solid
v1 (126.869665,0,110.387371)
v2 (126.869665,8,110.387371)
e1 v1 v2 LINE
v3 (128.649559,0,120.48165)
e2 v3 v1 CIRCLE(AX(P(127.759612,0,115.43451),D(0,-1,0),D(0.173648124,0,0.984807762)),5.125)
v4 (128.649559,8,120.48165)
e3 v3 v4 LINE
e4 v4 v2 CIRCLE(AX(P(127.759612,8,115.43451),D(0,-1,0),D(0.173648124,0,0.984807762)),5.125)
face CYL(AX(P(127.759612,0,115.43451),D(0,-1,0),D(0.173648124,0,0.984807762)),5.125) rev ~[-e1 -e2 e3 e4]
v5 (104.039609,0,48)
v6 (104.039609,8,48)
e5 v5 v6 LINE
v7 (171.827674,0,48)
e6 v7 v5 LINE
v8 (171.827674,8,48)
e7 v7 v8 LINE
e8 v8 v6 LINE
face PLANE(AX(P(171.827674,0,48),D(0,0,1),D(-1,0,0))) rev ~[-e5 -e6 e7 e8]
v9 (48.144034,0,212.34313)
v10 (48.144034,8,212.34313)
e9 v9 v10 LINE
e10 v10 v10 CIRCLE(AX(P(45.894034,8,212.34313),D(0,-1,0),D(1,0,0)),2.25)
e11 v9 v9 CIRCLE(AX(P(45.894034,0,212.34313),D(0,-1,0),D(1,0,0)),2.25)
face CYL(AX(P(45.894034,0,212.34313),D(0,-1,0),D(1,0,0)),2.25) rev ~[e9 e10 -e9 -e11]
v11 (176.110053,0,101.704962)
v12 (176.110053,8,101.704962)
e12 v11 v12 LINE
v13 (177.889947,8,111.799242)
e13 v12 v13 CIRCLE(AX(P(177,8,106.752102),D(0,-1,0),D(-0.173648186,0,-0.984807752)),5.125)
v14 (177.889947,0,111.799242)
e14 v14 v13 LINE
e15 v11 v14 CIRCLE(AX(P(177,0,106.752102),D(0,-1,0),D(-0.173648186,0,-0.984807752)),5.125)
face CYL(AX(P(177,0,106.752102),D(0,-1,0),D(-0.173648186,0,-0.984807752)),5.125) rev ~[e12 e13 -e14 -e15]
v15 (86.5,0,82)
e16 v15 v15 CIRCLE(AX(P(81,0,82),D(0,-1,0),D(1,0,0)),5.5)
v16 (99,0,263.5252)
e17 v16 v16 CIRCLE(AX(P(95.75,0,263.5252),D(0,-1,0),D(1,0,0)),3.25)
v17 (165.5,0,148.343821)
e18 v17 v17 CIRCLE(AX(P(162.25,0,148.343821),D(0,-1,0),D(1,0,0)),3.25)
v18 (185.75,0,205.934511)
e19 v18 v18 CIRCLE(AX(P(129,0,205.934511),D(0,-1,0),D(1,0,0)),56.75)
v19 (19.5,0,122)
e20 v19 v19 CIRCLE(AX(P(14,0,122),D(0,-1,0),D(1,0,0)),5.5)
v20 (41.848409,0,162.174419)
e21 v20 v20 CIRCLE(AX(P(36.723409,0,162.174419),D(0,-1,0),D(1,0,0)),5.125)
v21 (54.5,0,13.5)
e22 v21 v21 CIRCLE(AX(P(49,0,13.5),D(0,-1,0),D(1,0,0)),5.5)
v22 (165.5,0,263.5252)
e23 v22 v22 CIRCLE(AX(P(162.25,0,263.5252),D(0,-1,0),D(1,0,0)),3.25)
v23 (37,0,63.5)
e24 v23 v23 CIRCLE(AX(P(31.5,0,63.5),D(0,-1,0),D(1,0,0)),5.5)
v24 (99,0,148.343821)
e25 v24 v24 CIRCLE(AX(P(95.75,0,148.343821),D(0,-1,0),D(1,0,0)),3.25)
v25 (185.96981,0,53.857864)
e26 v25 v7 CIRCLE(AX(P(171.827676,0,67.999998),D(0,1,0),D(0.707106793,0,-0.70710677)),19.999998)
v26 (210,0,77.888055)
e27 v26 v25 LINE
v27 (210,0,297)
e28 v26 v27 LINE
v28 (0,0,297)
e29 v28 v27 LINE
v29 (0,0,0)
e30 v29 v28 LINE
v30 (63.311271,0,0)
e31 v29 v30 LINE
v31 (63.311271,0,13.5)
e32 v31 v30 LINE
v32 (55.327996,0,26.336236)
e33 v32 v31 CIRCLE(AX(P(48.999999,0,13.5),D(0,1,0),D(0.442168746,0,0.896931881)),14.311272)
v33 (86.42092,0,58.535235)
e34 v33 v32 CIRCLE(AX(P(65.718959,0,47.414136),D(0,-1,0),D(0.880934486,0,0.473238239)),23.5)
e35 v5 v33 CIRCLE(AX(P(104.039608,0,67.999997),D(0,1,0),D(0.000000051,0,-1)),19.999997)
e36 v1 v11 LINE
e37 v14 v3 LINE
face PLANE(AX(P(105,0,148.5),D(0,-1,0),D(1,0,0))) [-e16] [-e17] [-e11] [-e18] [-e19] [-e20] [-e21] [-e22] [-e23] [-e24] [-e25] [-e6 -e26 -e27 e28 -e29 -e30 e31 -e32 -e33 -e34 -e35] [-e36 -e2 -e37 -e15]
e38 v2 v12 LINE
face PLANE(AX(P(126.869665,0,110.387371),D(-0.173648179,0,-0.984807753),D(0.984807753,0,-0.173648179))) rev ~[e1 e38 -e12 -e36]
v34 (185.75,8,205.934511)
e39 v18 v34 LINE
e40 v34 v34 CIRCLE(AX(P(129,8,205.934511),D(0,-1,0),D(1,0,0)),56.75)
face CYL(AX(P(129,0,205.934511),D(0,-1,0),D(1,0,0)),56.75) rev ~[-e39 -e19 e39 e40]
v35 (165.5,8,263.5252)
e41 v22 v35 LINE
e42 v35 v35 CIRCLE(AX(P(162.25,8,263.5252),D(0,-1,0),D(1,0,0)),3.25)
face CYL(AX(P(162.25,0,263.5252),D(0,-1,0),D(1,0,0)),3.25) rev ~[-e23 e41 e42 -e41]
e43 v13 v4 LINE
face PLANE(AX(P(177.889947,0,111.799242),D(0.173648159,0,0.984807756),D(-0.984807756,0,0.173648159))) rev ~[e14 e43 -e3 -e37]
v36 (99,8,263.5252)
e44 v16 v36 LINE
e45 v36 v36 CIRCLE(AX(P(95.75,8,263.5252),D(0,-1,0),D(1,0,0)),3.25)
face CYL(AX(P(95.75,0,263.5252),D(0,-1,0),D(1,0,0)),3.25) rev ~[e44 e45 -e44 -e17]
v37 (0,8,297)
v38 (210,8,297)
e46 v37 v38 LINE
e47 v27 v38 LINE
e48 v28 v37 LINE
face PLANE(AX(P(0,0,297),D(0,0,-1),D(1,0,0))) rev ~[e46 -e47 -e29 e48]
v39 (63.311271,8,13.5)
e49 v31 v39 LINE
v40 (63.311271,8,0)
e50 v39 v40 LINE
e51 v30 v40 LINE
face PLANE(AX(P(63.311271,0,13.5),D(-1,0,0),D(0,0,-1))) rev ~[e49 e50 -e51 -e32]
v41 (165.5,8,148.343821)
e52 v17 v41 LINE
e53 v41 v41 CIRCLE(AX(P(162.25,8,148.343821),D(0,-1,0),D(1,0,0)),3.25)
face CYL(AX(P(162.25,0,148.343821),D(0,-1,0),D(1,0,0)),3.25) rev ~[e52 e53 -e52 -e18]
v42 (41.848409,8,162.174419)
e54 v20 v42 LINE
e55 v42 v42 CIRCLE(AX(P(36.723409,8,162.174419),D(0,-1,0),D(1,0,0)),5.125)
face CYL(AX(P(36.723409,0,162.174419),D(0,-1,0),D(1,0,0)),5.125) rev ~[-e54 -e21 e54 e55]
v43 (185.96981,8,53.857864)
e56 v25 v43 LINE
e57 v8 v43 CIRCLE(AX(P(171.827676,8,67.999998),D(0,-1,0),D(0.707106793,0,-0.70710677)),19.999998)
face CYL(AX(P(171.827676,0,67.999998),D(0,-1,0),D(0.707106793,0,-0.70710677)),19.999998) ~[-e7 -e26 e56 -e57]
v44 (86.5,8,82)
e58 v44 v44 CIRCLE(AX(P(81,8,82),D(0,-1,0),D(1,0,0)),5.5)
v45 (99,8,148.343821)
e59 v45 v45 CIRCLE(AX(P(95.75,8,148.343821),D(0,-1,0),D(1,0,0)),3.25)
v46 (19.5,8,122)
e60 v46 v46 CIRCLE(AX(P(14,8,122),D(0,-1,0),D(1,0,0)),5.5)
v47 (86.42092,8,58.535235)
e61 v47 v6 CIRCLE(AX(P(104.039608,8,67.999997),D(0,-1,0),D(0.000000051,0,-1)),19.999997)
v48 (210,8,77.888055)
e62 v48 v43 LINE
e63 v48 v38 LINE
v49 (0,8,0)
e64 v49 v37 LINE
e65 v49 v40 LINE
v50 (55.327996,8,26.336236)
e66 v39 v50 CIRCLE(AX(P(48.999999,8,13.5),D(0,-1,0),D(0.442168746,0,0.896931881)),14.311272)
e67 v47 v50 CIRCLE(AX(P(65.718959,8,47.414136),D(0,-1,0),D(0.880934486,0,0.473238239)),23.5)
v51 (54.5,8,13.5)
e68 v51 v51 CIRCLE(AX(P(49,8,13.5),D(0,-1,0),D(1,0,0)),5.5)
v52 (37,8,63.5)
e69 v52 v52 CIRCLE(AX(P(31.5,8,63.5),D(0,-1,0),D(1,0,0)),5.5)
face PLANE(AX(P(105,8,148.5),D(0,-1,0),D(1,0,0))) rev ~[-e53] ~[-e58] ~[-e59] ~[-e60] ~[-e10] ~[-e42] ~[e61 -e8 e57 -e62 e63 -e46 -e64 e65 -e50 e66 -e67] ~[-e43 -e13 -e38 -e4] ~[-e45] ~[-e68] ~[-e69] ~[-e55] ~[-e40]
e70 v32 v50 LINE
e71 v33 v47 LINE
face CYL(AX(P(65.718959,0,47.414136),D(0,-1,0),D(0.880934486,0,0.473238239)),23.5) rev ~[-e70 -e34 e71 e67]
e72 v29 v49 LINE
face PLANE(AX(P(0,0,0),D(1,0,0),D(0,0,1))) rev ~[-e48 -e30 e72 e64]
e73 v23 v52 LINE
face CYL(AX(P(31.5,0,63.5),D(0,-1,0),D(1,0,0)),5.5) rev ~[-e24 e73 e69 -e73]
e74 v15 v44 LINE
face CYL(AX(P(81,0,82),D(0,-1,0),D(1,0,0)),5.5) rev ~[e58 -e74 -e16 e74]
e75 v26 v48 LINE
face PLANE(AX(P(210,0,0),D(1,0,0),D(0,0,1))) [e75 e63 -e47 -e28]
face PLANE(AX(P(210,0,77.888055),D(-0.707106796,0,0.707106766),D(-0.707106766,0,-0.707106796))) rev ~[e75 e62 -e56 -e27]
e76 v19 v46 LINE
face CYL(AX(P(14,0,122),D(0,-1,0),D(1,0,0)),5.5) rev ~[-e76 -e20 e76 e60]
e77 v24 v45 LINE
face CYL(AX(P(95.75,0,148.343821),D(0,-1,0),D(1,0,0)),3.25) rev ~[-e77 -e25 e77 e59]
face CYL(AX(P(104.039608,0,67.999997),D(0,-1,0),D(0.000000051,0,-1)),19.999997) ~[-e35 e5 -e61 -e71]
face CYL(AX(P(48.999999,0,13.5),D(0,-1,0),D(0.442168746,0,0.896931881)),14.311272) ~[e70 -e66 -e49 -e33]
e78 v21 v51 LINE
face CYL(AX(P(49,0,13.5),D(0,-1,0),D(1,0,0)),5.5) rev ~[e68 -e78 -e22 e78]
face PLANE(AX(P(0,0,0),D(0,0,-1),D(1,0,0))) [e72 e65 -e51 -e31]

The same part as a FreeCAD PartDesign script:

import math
import FreeCAD as App
import Part
import Sketcher
Q = App.Units.Quantity

doc = App.newDocument("Part")
body = doc.addObject("PartDesign::Body", "Body")

# Sketch on XZ plane
sketch1 = doc.addObject("Sketcher::SketchObject", "Sketch")
body.addObject(sketch1)
sketch1.AttachmentSupport = (doc.XZ_Plane, [""])
sketch1.MapMode = "FlatFace"
sketch1.addGeometry([
    Part.LineSegment(App.Vector(0, 297, 0), App.Vector(0, 0, 0)),
    Part.LineSegment(App.Vector(0, 0, 0), App.Vector(210, 0, 0)),
    Part.LineSegment(App.Vector(210, 0, 0), App.Vector(210, 297, 0)),
    Part.LineSegment(App.Vector(210, 297, 0), App.Vector(0, 297, 0)),
], False)
sketch1.addConstraint([
    Sketcher.Constraint("Coincident", 0, 2, 1, 1),
    Sketcher.Constraint("Coincident", 1, 2, 2, 1),
    Sketcher.Constraint("Coincident", 2, 2, 3, 1),
    Sketcher.Constraint("Coincident", 3, 2, 0, 1),
    Sketcher.Constraint("Vertical", 0),
    Sketcher.Constraint("Horizontal", 1),
    Sketcher.Constraint("Vertical", 2),
    Sketcher.Constraint("Horizontal", 3),
    Sketcher.Constraint("Coincident", 0, 2, -1, 1),
    Sketcher.Constraint("DistanceX", 1, 1, 1, 2, Q("210 mm")),
    Sketcher.Constraint("DistanceY", 0, 2, 0, 1, Q("297 mm")),
])
pad1 = doc.addObject("PartDesign::Pad", "Pad")
body.addObject(pad1)
pad1.Profile = sketch1
pad1.Length = 8
pad1.Reversed = True

# Sketch on XZ plane
sketch2 = doc.addObject("Sketcher::SketchObject", "Sketch001")
body.addObject(sketch2)
sketch2.AttachmentSupport = (doc.XZ_Plane, [""])
sketch2.MapMode = "FlatFace"
sketch2.addGeometry([
    Part.Circle(App.Vector(14, 122, 0), App.Vector(0, 0, 1), 6),  # 0
    Part.Circle(App.Vector(32, 64, 0), App.Vector(0, 0, 1), 6),  # 1
    Part.Circle(App.Vector(81, 82, 0), App.Vector(0, 0, 1), 6),  # 2
    Part.Circle(App.Vector(49, 14, 0), App.Vector(0, 0, 1), 6),  # 3
    Part.ArcOfCircle(Part.Circle(App.Vector(104, 68, 0), App.Vector(0, 0, 1), 20), math.radians(-152), math.radians(-90)),  # 4
    Part.ArcOfCircle(Part.Circle(App.Vector(66, 47, 0), App.Vector(0, 0, 1), 24), math.radians(28), math.radians(244)),  # 5
    Part.ArcOfCircle(Part.Circle(App.Vector(49, 13, 0), App.Vector(0, 0, 1), 14), math.radians(0), math.radians(64)),  # 6
    Part.LineSegment(App.Vector(63, 14, 0), App.Vector(63, 0, 0)),  # 7
    Part.LineSegment(App.Vector(63, 0, 0), App.Vector(210, 0, 0)),  # 8
    Part.LineSegment(App.Vector(210, 0, 0), App.Vector(210, 78, 0)),  # 9
    Part.LineSegment(App.Vector(210, 78, 0), App.Vector(186, 54, 0)),  # 10
    Part.ArcOfCircle(Part.Circle(App.Vector(172, 68, 0), App.Vector(0, 0, 1), 20), math.radians(-90), math.radians(-45)),  # 11
    Part.LineSegment(App.Vector(172, 48, 0), App.Vector(104, 48, 0)),  # 12
], False)
sketch2.addConstraint([
    Sketcher.Constraint("Tangent", 4, 1, 5, 1),
    Sketcher.Constraint("Tangent", 5, 2, 6, 2),
    Sketcher.Constraint("Tangent", 6, 1, 7, 1),
    Sketcher.Constraint("Coincident", 7, 2, 8, 1),
    Sketcher.Constraint("Coincident", 8, 2, 9, 1),
    Sketcher.Constraint("Coincident", 9, 2, 10, 1),
    Sketcher.Constraint("Tangent", 10, 2, 11, 2),
    Sketcher.Constraint("Tangent", 11, 1, 12, 1),
    Sketcher.Constraint("Tangent", 12, 2, 4, 2),
    Sketcher.Constraint("Vertical", 7),
    Sketcher.Constraint("Horizontal", 8),
    Sketcher.Constraint("Vertical", 9),
    Sketcher.Constraint("Horizontal", 12),
    Sketcher.Constraint("Coincident", 6, 3, 3, 3),
    Sketcher.Constraint("Equal", 0, 1),
    Sketcher.Constraint("Equal", 1, 2),
    Sketcher.Constraint("Equal", 2, 3),
    Sketcher.Constraint("Equal", 4, 11),
    Sketcher.Constraint("PointOnObject", 7, 2, -1),
    Sketcher.Constraint("Diameter", 0, Q("11 mm")),
    Sketcher.Constraint("Radius", 5, Q("23.5 mm")),
    Sketcher.Constraint("Angle", 10, Q("-134.999999 deg")),
    Sketcher.Constraint("DistanceY", 7, 2, 7, 1, Q("13.5 mm")),
    Sketcher.Constraint("DistanceX", -1, 1, 0, 3, Q("14 mm")),
    Sketcher.Constraint("DistanceY", -1, 1, 0, 3, Q("122 mm")),
    Sketcher.Constraint("DistanceX", -1, 1, 2, 3, Q("81 mm")),
    Sketcher.Constraint("DistanceY", -1, 1, 2, 3, Q("82 mm")),
    Sketcher.Constraint("DistanceX", -1, 1, 3, 3, Q("49 mm")),
    Sketcher.Constraint("DistanceX", -1, 1, 8, 2, Q("210 mm")),
    Sketcher.Constraint("DistanceY", -1, 1, 11, 1, Q("48 mm")),
    Sketcher.Constraint("DistanceY", 3, 3, 1, 3, Q("50 mm")),
    Sketcher.Constraint("DistanceX", -1, 1, 1, 3, Q("31.5 mm")),
    Sketcher.Constraint("DistanceY", 6, 3, 11, 3, Q("54.499998 mm")),
    Sketcher.Constraint("Radius", 6, Q("14.311272 mm")),
    Sketcher.Constraint("DistanceY", 5, 3, 4, 1, Q("11.121099 mm")),
    Sketcher.Constraint("Distance", 10, Q("33.983821 mm")),
])
pocket1 = doc.addObject("PartDesign::Pocket", "Pocket")
body.addObject(pocket1)
pocket1.Profile = sketch2
pocket1.Type = "ThroughAll"

# Sketch on XZ plane
sketch3 = doc.addObject("Sketcher::SketchObject", "Sketch002")
body.addObject(sketch3)
sketch3.AttachmentSupport = (doc.XZ_Plane, [""])
sketch3.MapMode = "FlatFace"
sketch3.addGeometry([
    Part.Circle(App.Vector(129, 205.9, 0), App.Vector(0, 0, 1), 56.8),  # 0
    Part.Circle(App.Vector(95.8, 263.5, 0), App.Vector(0, 0, 1), 3.2),  # 1
    Part.Circle(App.Vector(162.2, 263.5, 0), App.Vector(0, 0, 1), 3.2),  # 2
    Part.Circle(App.Vector(95.8, 148.3, 0), App.Vector(0, 0, 1), 3.2),  # 3
    Part.Circle(App.Vector(162.2, 148.3, 0), App.Vector(0, 0, 1), 3.2),  # 4
], False)
sketch3.addConstraint([
    Sketcher.Constraint("Equal", 1, 2),
    Sketcher.Constraint("Equal", 2, 3),
    Sketcher.Constraint("Equal", 3, 4),
    Sketcher.Constraint("Horizontal", 1, 3, 2, 3),
    Sketcher.Constraint("Horizontal", 3, 3, 4, 3),
    Sketcher.Constraint("Vertical", 1, 3, 3, 3),
    Sketcher.Constraint("Vertical", 2, 3, 4, 3),
    Sketcher.Constraint("Diameter", 0, Q("113.5 mm")),
    Sketcher.Constraint("Diameter", 1, Q("6.5 mm")),
    Sketcher.Constraint("DistanceX", -1, 1, 0, 3, Q("129 mm")),
    Sketcher.Constraint("DistanceX", 1, 3, 2, 3, Q("66.5 mm")),
    Sketcher.Constraint("DistanceX", -1, 1, 1, 3, Q("95.75 mm")),
    Sketcher.Constraint("DistanceY", -1, 1, 1, 3, Q("263.5252 mm")),
    Sketcher.Constraint("DistanceY", -1, 1, 0, 3, Q("205.934511 mm")),
    Sketcher.Constraint("DistanceY", -1, 1, 3, 3, Q("148.343821 mm")),
])
pocket2 = doc.addObject("PartDesign::Pocket", "Pocket001")
body.addObject(pocket2)
pocket2.Profile = sketch3
pocket2.Type = "ThroughAll"

# Sketch on XZ plane
sketch4 = doc.addObject("Sketcher::SketchObject", "Sketch003")
body.addObject(sketch4)
sketch4.AttachmentSupport = (doc.XZ_Plane, [""])
sketch4.MapMode = "FlatFace"
sketch4.addGeometry([
    Part.LineSegment(App.Vector(177.9, 111.8, 0), App.Vector(128.6, 120.5, 0)),  # 0
    Part.ArcOfCircle(Part.Circle(App.Vector(127.8, 115.4, 0), App.Vector(0, 0, 1), 5.1), math.radians(80), math.radians(260)),  # 1
    Part.LineSegment(App.Vector(126.9, 110.4, 0), App.Vector(176.1, 101.7, 0)),  # 2
    Part.ArcOfCircle(Part.Circle(App.Vector(177, 106.8, 0), App.Vector(0, 0, 1), 5.1), math.radians(-100), math.radians(80)),  # 3
    Part.Circle(App.Vector(36.7, 162.2, 0), App.Vector(0, 0, 1), 5.1),  # 4
    Part.Circle(App.Vector(45.9, 212.3, 0), App.Vector(0, 0, 1), 2.2),  # 5
], False)
sketch4.addConstraint([
    Sketcher.Constraint("Tangent", 0, 2, 1, 1),
    Sketcher.Constraint("Tangent", 1, 2, 2, 1),
    Sketcher.Constraint("Tangent", 2, 2, 3, 1),
    Sketcher.Constraint("Tangent", 3, 2, 0, 1),
    Sketcher.Constraint("Equal", 1, 3),
    Sketcher.Constraint("Equal", 3, 4),
    Sketcher.Constraint("Diameter", 5, Q("4.5 mm")),
    Sketcher.Constraint("Diameter", 4, Q("10.25 mm")),
    Sketcher.Constraint("Angle", 0, Q("170.000001 deg")),
    Sketcher.Constraint("Distance", 0, Q("50 mm")),
    Sketcher.Constraint("DistanceX", -1, 1, 3, 3, Q("177 mm")),
    Sketcher.Constraint("DistanceY", -1, 1, 3, 3, Q("106.752102 mm")),
    Sketcher.Constraint("DistanceX", -1, 1, 4, 3, Q("36.723409 mm")),
    Sketcher.Constraint("DistanceY", -1, 1, 4, 3, Q("162.174419 mm")),
    Sketcher.Constraint("DistanceY", -1, 1, 5, 3, Q("212.34313 mm")),
    Sketcher.Constraint("DistanceX", 5, 3, 1, 3, Q("81.865578 mm")),
])
pocket3 = doc.addObject("PartDesign::Pocket", "Pocket002")
body.addObject(pocket3)
pocket3.Profile = sketch4
pocket3.Type = "ThroughAll"

doc.recompute()
